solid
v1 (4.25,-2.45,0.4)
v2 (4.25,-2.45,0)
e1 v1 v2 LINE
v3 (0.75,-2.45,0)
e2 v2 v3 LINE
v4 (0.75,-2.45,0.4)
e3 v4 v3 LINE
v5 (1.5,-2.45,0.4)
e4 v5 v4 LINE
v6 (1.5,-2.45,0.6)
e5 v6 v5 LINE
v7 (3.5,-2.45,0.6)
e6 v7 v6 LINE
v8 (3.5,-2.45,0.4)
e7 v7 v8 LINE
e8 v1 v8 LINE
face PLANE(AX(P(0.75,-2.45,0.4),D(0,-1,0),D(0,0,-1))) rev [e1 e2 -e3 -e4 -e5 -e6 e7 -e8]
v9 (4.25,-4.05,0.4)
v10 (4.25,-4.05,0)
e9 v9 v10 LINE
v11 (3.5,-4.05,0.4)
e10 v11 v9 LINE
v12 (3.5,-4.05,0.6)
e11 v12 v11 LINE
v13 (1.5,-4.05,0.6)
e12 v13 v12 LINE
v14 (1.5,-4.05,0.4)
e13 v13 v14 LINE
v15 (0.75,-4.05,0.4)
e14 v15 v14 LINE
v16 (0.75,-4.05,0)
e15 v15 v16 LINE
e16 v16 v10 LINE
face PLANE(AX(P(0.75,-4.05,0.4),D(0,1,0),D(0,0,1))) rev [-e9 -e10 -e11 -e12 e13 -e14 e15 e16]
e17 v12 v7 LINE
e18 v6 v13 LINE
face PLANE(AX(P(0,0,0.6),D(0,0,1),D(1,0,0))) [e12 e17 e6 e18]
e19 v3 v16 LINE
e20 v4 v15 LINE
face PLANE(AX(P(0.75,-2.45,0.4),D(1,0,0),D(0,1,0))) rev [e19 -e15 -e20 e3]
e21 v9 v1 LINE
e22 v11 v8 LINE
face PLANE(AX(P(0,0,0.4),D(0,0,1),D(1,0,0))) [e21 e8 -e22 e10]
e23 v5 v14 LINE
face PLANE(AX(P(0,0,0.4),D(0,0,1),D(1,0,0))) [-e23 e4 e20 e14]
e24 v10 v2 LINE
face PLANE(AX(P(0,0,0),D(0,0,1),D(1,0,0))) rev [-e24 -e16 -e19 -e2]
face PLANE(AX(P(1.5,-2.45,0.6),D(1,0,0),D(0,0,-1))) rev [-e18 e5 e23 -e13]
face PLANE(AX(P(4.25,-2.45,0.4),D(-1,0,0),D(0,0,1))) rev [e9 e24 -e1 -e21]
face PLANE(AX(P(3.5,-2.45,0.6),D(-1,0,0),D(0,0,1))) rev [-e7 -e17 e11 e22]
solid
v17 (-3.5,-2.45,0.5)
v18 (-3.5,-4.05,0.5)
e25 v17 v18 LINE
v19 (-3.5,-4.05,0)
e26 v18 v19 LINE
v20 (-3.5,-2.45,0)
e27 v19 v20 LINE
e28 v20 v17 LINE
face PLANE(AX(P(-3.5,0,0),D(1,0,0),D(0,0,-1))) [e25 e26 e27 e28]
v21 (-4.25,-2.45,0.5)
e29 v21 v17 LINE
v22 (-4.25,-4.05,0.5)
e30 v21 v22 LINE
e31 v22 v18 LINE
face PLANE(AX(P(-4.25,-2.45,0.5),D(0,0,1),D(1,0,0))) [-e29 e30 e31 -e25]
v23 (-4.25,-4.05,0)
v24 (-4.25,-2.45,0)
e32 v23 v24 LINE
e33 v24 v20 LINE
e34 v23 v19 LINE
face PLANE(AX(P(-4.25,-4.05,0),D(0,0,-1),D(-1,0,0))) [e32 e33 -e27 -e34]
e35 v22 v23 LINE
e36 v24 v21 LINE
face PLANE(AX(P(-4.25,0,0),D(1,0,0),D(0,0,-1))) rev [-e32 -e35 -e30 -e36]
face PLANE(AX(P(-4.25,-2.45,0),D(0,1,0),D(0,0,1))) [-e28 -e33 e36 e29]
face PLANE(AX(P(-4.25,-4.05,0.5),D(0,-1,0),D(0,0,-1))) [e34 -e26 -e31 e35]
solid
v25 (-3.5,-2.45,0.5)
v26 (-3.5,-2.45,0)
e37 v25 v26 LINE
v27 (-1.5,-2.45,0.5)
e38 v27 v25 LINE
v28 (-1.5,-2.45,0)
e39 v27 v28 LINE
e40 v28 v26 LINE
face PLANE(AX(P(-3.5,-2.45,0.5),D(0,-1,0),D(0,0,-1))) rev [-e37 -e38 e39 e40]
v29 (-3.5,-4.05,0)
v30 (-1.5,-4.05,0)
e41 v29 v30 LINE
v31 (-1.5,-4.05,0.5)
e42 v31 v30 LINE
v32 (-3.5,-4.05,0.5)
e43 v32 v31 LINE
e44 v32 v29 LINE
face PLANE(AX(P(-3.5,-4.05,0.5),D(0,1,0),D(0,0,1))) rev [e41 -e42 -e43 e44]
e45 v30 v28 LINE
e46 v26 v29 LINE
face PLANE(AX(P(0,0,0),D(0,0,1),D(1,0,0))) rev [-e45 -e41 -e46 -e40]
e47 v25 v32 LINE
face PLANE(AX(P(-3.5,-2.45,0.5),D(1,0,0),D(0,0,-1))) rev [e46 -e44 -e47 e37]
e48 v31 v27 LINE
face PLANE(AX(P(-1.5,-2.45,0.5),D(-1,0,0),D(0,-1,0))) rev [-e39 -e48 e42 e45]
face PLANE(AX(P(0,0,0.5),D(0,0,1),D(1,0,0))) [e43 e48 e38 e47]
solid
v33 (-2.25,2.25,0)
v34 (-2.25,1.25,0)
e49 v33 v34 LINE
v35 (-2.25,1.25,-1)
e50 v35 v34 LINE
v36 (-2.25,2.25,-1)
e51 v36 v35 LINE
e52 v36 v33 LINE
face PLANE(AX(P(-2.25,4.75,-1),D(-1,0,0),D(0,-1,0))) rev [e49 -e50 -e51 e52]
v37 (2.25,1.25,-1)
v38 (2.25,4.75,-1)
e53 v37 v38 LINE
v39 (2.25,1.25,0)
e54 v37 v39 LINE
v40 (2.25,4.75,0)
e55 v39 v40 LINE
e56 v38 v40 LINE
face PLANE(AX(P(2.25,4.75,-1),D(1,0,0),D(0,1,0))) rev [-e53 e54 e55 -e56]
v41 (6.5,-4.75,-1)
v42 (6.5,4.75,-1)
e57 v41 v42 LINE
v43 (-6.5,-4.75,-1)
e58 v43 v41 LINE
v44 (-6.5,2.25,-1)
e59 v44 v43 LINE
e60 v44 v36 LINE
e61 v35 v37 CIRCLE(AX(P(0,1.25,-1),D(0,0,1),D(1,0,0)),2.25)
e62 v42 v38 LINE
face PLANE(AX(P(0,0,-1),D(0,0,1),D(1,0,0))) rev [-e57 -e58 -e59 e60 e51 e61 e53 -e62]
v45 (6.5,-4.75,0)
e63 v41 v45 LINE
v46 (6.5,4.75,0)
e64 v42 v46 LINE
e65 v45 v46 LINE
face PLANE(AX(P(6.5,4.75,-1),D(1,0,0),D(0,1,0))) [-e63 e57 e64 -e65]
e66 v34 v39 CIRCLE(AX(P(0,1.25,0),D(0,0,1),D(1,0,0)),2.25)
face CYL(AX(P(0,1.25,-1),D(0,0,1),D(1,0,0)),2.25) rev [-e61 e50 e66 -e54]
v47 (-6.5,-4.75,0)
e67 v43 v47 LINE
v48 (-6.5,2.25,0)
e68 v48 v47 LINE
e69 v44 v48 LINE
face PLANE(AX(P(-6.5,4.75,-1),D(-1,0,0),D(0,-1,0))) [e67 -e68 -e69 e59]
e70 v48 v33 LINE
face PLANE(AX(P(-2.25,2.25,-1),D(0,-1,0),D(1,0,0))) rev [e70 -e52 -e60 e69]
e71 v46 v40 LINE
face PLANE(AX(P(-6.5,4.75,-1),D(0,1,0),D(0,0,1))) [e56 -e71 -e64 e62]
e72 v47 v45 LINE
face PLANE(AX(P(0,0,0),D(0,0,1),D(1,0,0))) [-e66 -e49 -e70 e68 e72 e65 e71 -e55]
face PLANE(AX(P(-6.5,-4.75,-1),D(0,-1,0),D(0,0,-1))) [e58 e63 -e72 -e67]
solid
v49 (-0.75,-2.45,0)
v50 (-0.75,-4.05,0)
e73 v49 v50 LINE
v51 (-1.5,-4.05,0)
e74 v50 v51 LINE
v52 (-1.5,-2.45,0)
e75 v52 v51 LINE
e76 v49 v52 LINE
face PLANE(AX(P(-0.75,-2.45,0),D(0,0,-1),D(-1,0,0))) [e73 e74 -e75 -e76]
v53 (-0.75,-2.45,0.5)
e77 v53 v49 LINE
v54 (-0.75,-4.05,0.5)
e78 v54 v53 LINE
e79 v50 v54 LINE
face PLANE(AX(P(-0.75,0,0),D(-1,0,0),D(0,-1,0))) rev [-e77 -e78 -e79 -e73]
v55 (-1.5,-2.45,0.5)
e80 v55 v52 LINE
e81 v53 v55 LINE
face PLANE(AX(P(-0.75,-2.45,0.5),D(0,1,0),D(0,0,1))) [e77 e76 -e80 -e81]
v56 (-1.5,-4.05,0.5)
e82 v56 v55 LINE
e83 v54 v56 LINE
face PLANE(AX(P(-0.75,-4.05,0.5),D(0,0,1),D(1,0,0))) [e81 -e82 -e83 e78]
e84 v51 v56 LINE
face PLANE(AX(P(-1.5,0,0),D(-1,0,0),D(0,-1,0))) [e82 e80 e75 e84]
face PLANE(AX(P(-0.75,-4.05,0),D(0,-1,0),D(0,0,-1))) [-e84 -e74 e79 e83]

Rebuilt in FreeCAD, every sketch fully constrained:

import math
import FreeCAD as App
import Part
import Sketcher

doc = App.newDocument("Part")
params = doc.addObject("Spreadsheet::Sheet", "Params")
for row, (alias, value) in enumerate([
    ("sketch1_width", "13 mm"),
    ("sketch1_height", "9.5 mm"),
    ("pad1_length", "1 mm"),
    ("sketch2_radius", "2.25 mm"),
    ("sketch2_height", "3.5 mm"),
    ("sketch3_height", "2.5 mm"),
    ("sketch3_width", "4.25 mm"),
    ("sketch4_width", "2 mm"),
    ("sketch4_height", "1.6 mm"),
    ("pad2_length", "0.5 mm"),
    ("sketch5_width", "1.6 mm"),
    ("sketch5_height", "0.5 mm"),
    ("pad3_length", "0.75 mm"),
    ("sketch6_width", "1.6 mm"),
    ("sketch6_height", "0.5 mm"),
    ("pad4_length", "0.75 mm"),
    ("sketch7_width", "3.5 mm"),
    ("sketch7_height", "1.6 mm"),
    ("pad5_length", "0.4 mm"),
    ("sketch8_width", "2 mm"),
    ("sketch8_height", "1.6 mm"),
    ("pad6_length", "0.2 mm"),
], start=1):
    params.set(f"A{row}", alias)
    params.set(f"B{row}", "=" + value)
    params.setAlias(f"B{row}", alias)

body = doc.addObject("PartDesign::Body", "Body")

sketch1 = body.newObject("Sketcher::SketchObject", "Sketch")
sketch1.AttachmentSupport = (doc.getObject("XY_Plane"), [""])
sketch1.MapMode = "FlatFace"
sketch1.addGeometry(Part.LineSegment(App.Vector(-6, 5, 0), App.Vector(-6, -5, 0)), False)
sketch1.addGeometry(Part.LineSegment(App.Vector(-6, -5, 0), App.Vector(6, -5, 0)), False)
sketch1.addGeometry(Part.LineSegment(App.Vector(6, -5, 0), App.Vector(6, 5, 0)), False)
sketch1.addGeometry(Part.LineSegment(App.Vector(6, 5, 0), App.Vector(-6, 5, 0)), False)
sketch1.addConstraint(Sketcher.Constraint("Coincident", 0, 2, 1, 1))
sketch1.addConstraint(Sketcher.Constraint("Coincident", 1, 2, 2, 1))
sketch1.addConstraint(Sketcher.Constraint("Coincident", 2, 2, 3, 1))
sketch1.addConstraint(Sketcher.Constraint("Coincident", 3, 2, 0, 1))
sketch1.addConstraint(Sketcher.Constraint("Vertical", 0))
sketch1.addConstraint(Sketcher.Constraint("Horizontal", 1))
sketch1.addConstraint(Sketcher.Constraint("Vertical", 2))
sketch1.addConstraint(Sketcher.Constraint("Horizontal", 3))
sketch1.addConstraint(Sketcher.Constraint("Symmetric", 0, 2, 2, 2, -1, 1))
sketch1.addConstraint(Sketcher.Constraint("DistanceX", 1, 1, 1, 2, 13.0))
sketch1.addConstraint(Sketcher.Constraint("DistanceY", 0, 2, 0, 1, 9.5))
sketch1.setExpression("Constraints[9]", "Params.sketch1_width")
sketch1.setExpression("Constraints[10]", "Params.sketch1_height")
pad1 = body.newObject("PartDesign::Pad", "Pad")
pad1.Profile = sketch1
pad1.setExpression("Length", "Params.pad1_length")
pad1.Reversed = True

sketch2 = body.newObject("Sketcher::SketchObject", "Sketch001")
sketch2.AttachmentSupport = (doc.getObject("XY_Plane"), [""])
sketch2.MapMode = "FlatFace"
sketch2.addGeometry(Part.LineSegment(App.Vector(2.2, 4.8, 0), App.Vector(-2.2, 4.8, 0)), False)
sketch2.addGeometry(Part.LineSegment(App.Vector(-2.2, 4.8, 0), App.Vector(-2.2, 1.2, 0)), False)
sketch2.addGeometry(Part.ArcOfCircle(Part.Circle(App.Vector(0, 1.2, 0), App.Vector(0, 0, 1), 2.2), math.radians(180), math.radians(360)), False)
sketch2.addGeometry(Part.LineSegment(App.Vector(2.2, 1.2, 0), App.Vector(2.2, 4.8, 0)), False)
sketch2.addConstraint(Sketcher.Constraint("Coincident", 0, 2, 1, 1))
sketch2.addConstraint(Sketcher.Constraint("Tangent", 1, 2, 2, 1))
sketch2.addConstraint(Sketcher.Constraint("Tangent", 2, 2, 3, 1))
sketch2.addConstraint(Sketcher.Constraint("Coincident", 3, 2, 0, 1))
sketch2.addConstraint(Sketcher.Constraint("Horizontal", 0))
sketch2.addConstraint(Sketcher.Constraint("Vertical", 1))
sketch2.addConstraint(Sketcher.Constraint("Vertical", 3))
sketch2.addConstraint(Sketcher.Constraint("PointOnObject", 2, 3, -2))
sketch2.addConstraint(Sketcher.Constraint("Radius", 2, 2.25))
sketch2.addConstraint(Sketcher.Constraint("DistanceY", 1, 2, 1, 1, 3.5))
sketch2.addConstraint(Sketcher.Constraint("DistanceY", -1, 1, 2, 3, 1.25))
sketch2.setExpression("Constraints[8]", "Params.sketch2_radius")
sketch2.setExpression("Constraints[9]", "Params.sketch2_height")
pocket1 = body.newObject("PartDesign::Pocket", "Pocket")
pocket1.Profile = sketch2
pocket1.Type = "ThroughAll"

sketch3 = body.newObject("Sketcher::SketchObject", "Sketch002")
sketch3.AttachmentSupport = (doc.getObject("XY_Plane"), [""])
sketch3.MapMode = "FlatFace"
sketch3.addGeometry(Part.LineSegment(App.Vector(-6.5, 4.8, 0), App.Vector(-6.5, 2.2, 0)), False)
sketch3.addGeometry(Part.LineSegment(App.Vector(-6.5, 2.2, 0), App.Vector(-2.2, 2.2, 0)), False)
sketch3.addGeometry(Part.LineSegment(App.Vector(-2.2, 2.2, 0), App.Vector(-2.2, 4.8, 0)), False)
sketch3.addGeometry(Part.LineSegment(App.Vector(-2.2, 4.8, 0), App.Vector(-6.5, 4.8, 0)), False)
sketch3.addConstraint(Sketcher.Constraint("Coincident", 0, 2, 1, 1))
sketch3.addConstraint(Sketcher.Constraint("Coincident", 1, 2, 2, 1))
sketch3.addConstraint(Sketcher.Constraint("Coincident", 2, 2, 3, 1))
sketch3.addConstraint(Sketcher.Constraint("Coincident", 3, 2, 0, 1))
sketch3.addConstraint(Sketcher.Constraint("Vertical", 0))
sketch3.addConstraint(Sketcher.Constraint("Horizontal", 1))
sketch3.addConstraint(Sketcher.Constraint("Vertical", 2))
sketch3.addConstraint(Sketcher.Constraint("Horizontal", 3))
sketch3.addConstraint(Sketcher.Constraint("DistanceY", 0, 2, 0, 1, 2.5))
sketch3.addConstraint(Sketcher.Constraint("DistanceX", 1, 1, 1, 2, 4.25))
sketch3.addConstraint(Sketcher.Constraint("DistanceX", 0, 2, -1, 1, 6.5))
sketch3.addConstraint(Sketcher.Constraint("DistanceY", -1, 1, 0, 2, 2.25))
sketch3.setExpression("Constraints[8]", "Params.sketch3_height")
sketch3.setExpression("Constraints[9]", "Params.sketch3_width")
pocket2 = body.newObject("PartDesign::Pocket", "Pocket001")
pocket2.Profile = sketch3
pocket2.Type = "ThroughAll"
body2 = doc.addObject("PartDesign::Body", "Body001")

sketch4 = body2.newObject("Sketcher::SketchObject", "Sketch003")
sketch4.AttachmentSupport = (doc.getObject("XY_Plane001"), [""])
sketch4.MapMode = "FlatFace"
sketch4.addGeometry(Part.LineSegment(App.Vector(-3.5, -2.5, 0), App.Vector(-3.5, -4, 0)), False)
sketch4.addGeometry(Part.LineSegment(App.Vector(-3.5, -4, 0), App.Vector(-1.5, -4, 0)), False)
sketch4.addGeometry(Part.LineSegment(App.Vector(-1.5, -4, 0), App.Vector(-1.5, -2.5, 0)), False)
sketch4.addGeometry(Part.LineSegment(App.Vector(-1.5, -2.5, 0), App.Vector(-3.5, -2.5, 0)), False)
sketch4.addConstraint(Sketcher.Constraint("Coincident", 0, 2, 1, 1))
sketch4.addConstraint(Sketcher.Constraint("Coincident", 1, 2, 2, 1))
sketch4.addConstraint(Sketcher.Constraint("Coincident", 2, 2, 3, 1))
sketch4.addConstraint(Sketcher.Constraint("Coincident", 3, 2, 0, 1))
sketch4.addConstraint(Sketcher.Constraint("Vertical", 0))
sketch4.addConstraint(Sketcher.Constraint("Horizontal", 1))
sketch4.addConstraint(Sketcher.Constraint("Vertical", 2))
sketch4.addConstraint(Sketcher.Constraint("Horizontal", 3))
sketch4.addConstraint(Sketcher.Constraint("DistanceX", 1, 1, 1, 2, 2.0))
sketch4.addConstraint(Sketcher.Constraint("DistanceY", 0, 2, 0, 1, 1.6))
sketch4.addConstraint(Sketcher.Constraint("DistanceX", 0, 2, -1, 1, 3.5))
sketch4.addConstraint(Sketcher.Constraint("DistanceY", 0, 2, -1, 1, 4.05))
sketch4.setExpression("Constraints[8]", "Params.sketch4_width")
sketch4.setExpression("Constraints[9]", "Params.sketch4_height")
pad2 = body2.newObject("PartDesign::Pad", "Pad001")
pad2.Profile = sketch4
pad2.setExpression("Length", "Params.pad2_length")
body3 = doc.addObject("PartDesign::Body", "Body002")

sketch5 = body3.newObject("Sketcher::SketchObject", "Sketch004")
sketch5.AttachmentSupport = (doc.getObject("YZ_Plane002"), [""])
sketch5.MapMode = "FlatFace"
sketch5.AttachmentOffset = App.Placement(App.Vector(0, 0, -3.5), App.Rotation())
sketch5.addGeometry(Part.LineSegment(App.Vector(-4, 0.5, 0), App.Vector(-4, 0, 0)), False)
sketch5.addGeometry(Part.LineSegment(App.Vector(-4, 0, 0), App.Vector(-2.5, 0, 0)), False)
sketch5.addGeometry(Part.LineSegment(App.Vector(-2.5, 0, 0), App.Vector(-2.5, 0.5, 0)), False)
sketch5.addGeometry(Part.LineSegment(App.Vector(-2.5, 0.5, 0), App.Vector(-4, 0.5, 0)), False)
sketch5.addConstraint(Sketcher.Constraint("Coincident", 0, 2, 1, 1))
sketch5.addConstraint(Sketcher.Constraint("Coincident", 1, 2, 2, 1))
sketch5.addConstraint(Sketcher.Constraint("Coincident", 2, 2, 3, 1))
sketch5.addConstraint(Sketcher.Constraint("Coincident", 3, 2, 0, 1))
sketch5.addConstraint(Sketcher.Constraint("Vertical", 0))
sketch5.addConstraint(Sketcher.Constraint("Horizontal", 1))
sketch5.addConstraint(Sketcher.Constraint("Vertical", 2))
sketch5.addConstraint(Sketcher.Constraint("Horizontal", 3))
sketch5.addConstraint(Sketcher.Constraint("PointOnObject", 0, 2, -1))
sketch5.addConstraint(Sketcher.Constraint("DistanceX", 1, 1, 1, 2, 1.6))
sketch5.addConstraint(Sketcher.Constraint("DistanceY", 0, 2, 0, 1, 0.5))
sketch5.addConstraint(Sketcher.Constraint("DistanceX", 0, 2, -1, 1, 4.05))
sketch5.setExpression("Constraints[9]", "Params.sketch5_width")
sketch5.setExpression("Constraints[10]", "Params.sketch5_height")
pad3 = body3.newObject("PartDesign::Pad", "Pad002")
pad3.Profile = sketch5
pad3.setExpression("Length", "Params.pad3_length")
pad3.Reversed = True
body4 = doc.addObject("PartDesign::Body", "Body003")

sketch6 = body4.newObject("Sketcher::SketchObject", "Sketch005")
sketch6.AttachmentSupport = (doc.getObject("YZ_Plane003"), [""])
sketch6.MapMode = "FlatFace"
sketch6.AttachmentOffset = App.Placement(App.Vector(0, 0, -1.5), App.Rotation())
sketch6.addGeometry(Part.LineSegment(App.Vector(-4, 0, 0), App.Vector(-4, 0.5, 0)), False)
sketch6.addGeometry(Part.LineSegment(App.Vector(-4, 0.5, 0), App.Vector(-2.5, 0.5, 0)), False)
sketch6.addGeometry(Part.LineSegment(App.Vector(-2.5, 0.5, 0), App.Vector(-2.5, 0, 0)), False)
sketch6.addGeometry(Part.LineSegment(App.Vector(-2.5, 0, 0), App.Vector(-4, 0, 0)), False)
sketch6.addConstraint(Sketcher.Constraint("Coincident", 0, 2, 1, 1))
sketch6.addConstraint(Sketcher.Constraint("Coincident", 1, 2, 2, 1))
sketch6.addConstraint(Sketcher.Constraint("Coincident", 2, 2, 3, 1))
sketch6.addConstraint(Sketcher.Constraint("Coincident", 3, 2, 0, 1))
sketch6.addConstraint(Sketcher.Constraint("Vertical", 0))
sketch6.addConstraint(Sketcher.Constraint("Horizontal", 1))
sketch6.addConstraint(Sketcher.Constraint("Vertical", 2))
sketch6.addConstraint(Sketcher.Constraint("Horizontal", 3))
sketch6.addConstraint(Sketcher.Constraint("PointOnObject", 2, 2, -1))
sketch6.addConstraint(Sketcher.Constraint("DistanceX", 1, 1, 1, 2, 1.6))
sketch6.addConstraint(Sketcher.Constraint("DistanceY", 0, 1, 0, 2, 0.5))
sketch6.addConstraint(Sketcher.Constraint("DistanceX", 0, 2, -1, 1, 4.05))
sketch6.setExpression("Constraints[9]", "Params.sketch6_width")
sketch6.setExpression("Constraints[10]", "Params.sketch6_height")
pad4 = body4.newObject("PartDesign::Pad", "Pad003")
pad4.Profile = sketch6
pad4.setExpression("Length", "Params.pad4_length")
body5 = doc.addObject("PartDesign::Body", "Body004")

sketch7 = body5.newObject("Sketcher::SketchObject", "Sketch006")
sketch7.AttachmentSupport = (doc.getObject("XY_Plane004"), [""])
sketch7.MapMode = "FlatFace"
sketch7.addGeometry(Part.LineSegment(App.Vector(0.8, -2.5, 0), App.Vector(0.8, -4, 0)), False)
sketch7.addGeometry(Part.LineSegment(App.Vector(0.8, -4, 0), App.Vector(4.2, -4, 0)), False)
sketch7.addGeometry(Part.LineSegment(App.Vector(4.2, -4, 0), App.Vector(4.2, -2.5, 0)), False)
sketch7.addGeometry(Part.LineSegment(App.Vector(4.2, -2.5, 0), App.Vector(0.8, -2.5, 0)), False)
sketch7.addConstraint(Sketcher.Constraint("Coincident", 0, 2, 1, 1))
sketch7.addConstraint(Sketcher.Constraint("Coincident", 1, 2, 2, 1))
sketch7.addConstraint(Sketcher.Constraint("Coincident", 2, 2, 3, 1))
sketch7.addConstraint(Sketcher.Constraint("Coincident", 3, 2, 0, 1))
sketch7.addConstraint(Sketcher.Constraint("Vertical", 0))
sketch7.addConstraint(Sketcher.Constraint("Horizontal", 1))
sketch7.addConstraint(Sketcher.Constraint("Vertical", 2))
sketch7.addConstraint(Sketcher.Constraint("Horizontal", 3))
sketch7.addConstraint(Sketcher.Constraint("DistanceX", 1, 1, 1, 2, 3.5))
sketch7.addConstraint(Sketcher.Constraint("DistanceY", 0, 2, 0, 1, 1.6))
sketch7.addConstraint(Sketcher.Constraint("DistanceX", -1, 1, 0, 2, 0.75))
sketch7.addConstraint(Sketcher.Constraint("DistanceY", 0, 2, -1, 1, 4.05))
sketch7.setExpression("Constraints[8]", "Params.sketch7_width")
sketch7.setExpression("Constraints[9]", "Params.sketch7_height")
pad5 = body5.newObject("PartDesign::Pad", "Pad004")
pad5.Profile = sketch7
pad5.setExpression("Length", "Params.pad5_length")

sketch8 = body5.newObject("Sketcher::SketchObject", "Sketch007")
sketch8.AttachmentSupport = (doc.getObject("XY_Plane004"), [""])
sketch8.MapMode = "FlatFace"
sketch8.AttachmentOffset = App.Placement(App.Vector(0, 0, 0.4), App.Rotation())
sketch8.addGeometry(Part.LineSegment(App.Vector(1.5, -2.5, 0), App.Vector(1.5, -4, 0)), False)
sketch8.addGeometry(Part.LineSegment(App.Vector(1.5, -4, 0), App.Vector(3.5, -4, 0)), False)
sketch8.addGeometry(Part.LineSegment(App.Vector(3.5, -4, 0), App.Vector(3.5, -2.5, 0)), False)
sketch8.addGeometry(Part.LineSegment(App.Vector(3.5, -2.5, 0), App.Vector(1.5, -2.5, 0)), False)
sketch8.addConstraint(Sketcher.Constraint("Coincident", 0, 2, 1, 1))
sketch8.addConstraint(Sketcher.Constraint("Coincident", 1, 2, 2, 1))
sketch8.addConstraint(Sketcher.Constraint("Coincident", 2, 2, 3, 1))
sketch8.addConstraint(Sketcher.Constraint("Coincident", 3, 2, 0, 1))
sketch8.addConstraint(Sketcher.Constraint("Vertical", 0))
sketch8.addConstraint(Sketcher.Constraint("Horizontal", 1))
sketch8.addConstraint(Sketcher.Constraint("Vertical", 2))
sketch8.addConstraint(Sketcher.Constraint("Horizontal", 3))
sketch8.addConstraint(Sketcher.Constraint("DistanceX", 1, 1, 1, 2, 2.0))
sketch8.addConstraint(Sketcher.Constraint("DistanceY", 0, 2, 0, 1, 1.6))
sketch8.addConstraint(Sketcher.Constraint("DistanceX", -1, 1, 0, 2, 1.5))
sketch8.addConstraint(Sketcher.Constraint("DistanceY", 0, 2, -1, 1, 4.05))
sketch8.setExpression("Constraints[8]", "Params.sketch8_width")
sketch8.setExpression("Constraints[9]", "Params.sketch8_height")
pad6 = body5.newObject("PartDesign::Pad", "Pad005")
pad6.Profile = sketch8
pad6.setExpression("Length", "Params.pad6_length")

doc.recompute()
